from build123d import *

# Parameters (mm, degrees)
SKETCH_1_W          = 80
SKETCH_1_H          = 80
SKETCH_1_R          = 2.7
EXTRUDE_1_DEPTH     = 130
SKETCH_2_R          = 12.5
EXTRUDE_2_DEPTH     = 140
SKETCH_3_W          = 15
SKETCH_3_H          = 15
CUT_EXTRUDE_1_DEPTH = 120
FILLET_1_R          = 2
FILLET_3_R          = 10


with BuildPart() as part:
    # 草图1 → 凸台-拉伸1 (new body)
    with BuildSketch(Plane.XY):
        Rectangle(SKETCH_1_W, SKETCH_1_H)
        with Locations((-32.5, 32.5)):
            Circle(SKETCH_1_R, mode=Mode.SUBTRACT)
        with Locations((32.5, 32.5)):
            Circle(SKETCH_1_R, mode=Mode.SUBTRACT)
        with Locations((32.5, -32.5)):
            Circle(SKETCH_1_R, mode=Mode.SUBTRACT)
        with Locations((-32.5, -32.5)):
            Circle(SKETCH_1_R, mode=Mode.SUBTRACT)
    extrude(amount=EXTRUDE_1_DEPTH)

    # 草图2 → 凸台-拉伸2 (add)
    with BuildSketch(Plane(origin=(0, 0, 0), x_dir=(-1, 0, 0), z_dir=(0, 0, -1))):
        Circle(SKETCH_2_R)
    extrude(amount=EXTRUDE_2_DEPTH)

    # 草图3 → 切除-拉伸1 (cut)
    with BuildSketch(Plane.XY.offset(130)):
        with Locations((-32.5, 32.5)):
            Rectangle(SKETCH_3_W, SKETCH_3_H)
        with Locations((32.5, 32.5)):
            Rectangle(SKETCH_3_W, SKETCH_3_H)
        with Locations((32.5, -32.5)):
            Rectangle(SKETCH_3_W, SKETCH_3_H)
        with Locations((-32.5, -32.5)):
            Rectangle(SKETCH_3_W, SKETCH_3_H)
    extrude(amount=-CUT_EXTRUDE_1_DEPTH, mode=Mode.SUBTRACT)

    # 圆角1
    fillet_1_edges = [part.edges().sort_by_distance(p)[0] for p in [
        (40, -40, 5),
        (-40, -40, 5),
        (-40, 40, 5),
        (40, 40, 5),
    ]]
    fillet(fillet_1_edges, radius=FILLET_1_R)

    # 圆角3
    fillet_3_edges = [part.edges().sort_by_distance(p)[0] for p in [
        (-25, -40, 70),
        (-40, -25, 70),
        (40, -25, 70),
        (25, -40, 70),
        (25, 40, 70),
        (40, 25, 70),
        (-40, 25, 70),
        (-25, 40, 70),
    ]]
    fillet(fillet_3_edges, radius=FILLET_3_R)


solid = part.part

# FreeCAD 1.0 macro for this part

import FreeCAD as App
import Part
import Sketcher

V = App.Vector


def edges_at(feature, points):
    """Names of the edges that pass closest to the given points."""
    edges = feature.Shape.Edges
    near = lambda p: min(range(len(edges)), key=lambda i: edges[i].distToShape(Part.Vertex(*p))[0])
    return sorted({f"Edge{near(p) + 1}" for p in points})


def add_polygon(sketch, points):
    """Adds a closed chain of lines whose ends are joined by coincident constraints."""
    first, n = sketch.GeometryCount, len(points)
    for a, b in zip(points, points[1:] + points[:1]):
        sketch.addGeometry(Part.LineSegment(App.Vector(*a, 0), App.Vector(*b, 0)), False)
    for i in range(n):
        sketch.addConstraint(Sketcher.Constraint("Coincident", first + i, 2, first + (i + 1) % n, 1))

doc = App.newDocument("Part")
body = doc.addObject("PartDesign::Body", "Body")

sketch1 = doc.addObject("Sketcher::SketchObject", "Sketch")
body.addObject(sketch1)
sketch1.AttachmentSupport = (doc.XY_Plane, [""])
sketch1.MapMode = "FlatFace"
add_polygon(sketch1, [(-40, 40), (-40, -40), (40, -40), (40, 40)])
sketch1.addGeometry(Part.Circle(V(-32.5, -32.5, 0), V(0, 0, 1), 2.7), False)
sketch1.addGeometry(Part.Circle(V(32.5, -32.5, 0), V(0, 0, 1), 2.7), False)
sketch1.addGeometry(Part.Circle(V(-32.5, 32.5, 0), V(0, 0, 1), 2.7), False)
sketch1.addGeometry(Part.Circle(V(32.5, 32.5, 0), V(0, 0, 1), 2.7), False)
sketch1.addConstraint([
    Sketcher.Constraint("Vertical", 0),
    Sketcher.Constraint("Horizontal", 1),
    Sketcher.Constraint("Vertical", 2),
    Sketcher.Constraint("Horizontal", 3),
    Sketcher.Constraint("Equal", 4, 5),
    Sketcher.Constraint("Equal", 5, 6),
    Sketcher.Constraint("Equal", 6, 7),
    Sketcher.Constraint("Symmetric", 5, 3, 6, 3, -1, 1),
    Sketcher.Constraint("Symmetric", 4, 3, 7, 3, -1, 1),
    Sketcher.Constraint("Symmetric", 0, 2, 2, 2, -1, 1),
    Sketcher.Constraint("Symmetric", 4, 3, 5, 3, -2),
    Sketcher.Constraint("Equal", 3, 0),
    Sketcher.Constraint("Diameter", 4, 5.4),
    Sketcher.Constraint("DistanceX", 1, 1, 1, 2, 80.0),
    Sketcher.Constraint("DistanceX", 4, 3, 5, 3, 65.0),
    Sketcher.Constraint("DistanceY", 4, 3, 6, 3, 65.0),
])
pad1 = doc.addObject("PartDesign::Pad", "Pad")
body.addObject(pad1)
pad1.Profile = sketch1
pad1.Length = 130

sketch2 = doc.addObject("Sketcher::SketchObject", "Sketch001")
body.addObject(sketch2)
sketch2.AttachmentSupport = (doc.XY_Plane, [""])
sketch2.MapMode = "FlatFace"
sketch2.addGeometry(Part.Circle(V(0, 0, 0), V(0, 0, 1), 12.5), False)
sketch2.addConstraint([
    Sketcher.Constraint("Coincident", 0, 3, -1, 1),
    Sketcher.Constraint("Diameter", 0, 25.0),
])
pad2 = doc.addObject("PartDesign::Pad", "Pad001")
body.addObject(pad2)
pad2.Profile = sketch2
pad2.Length = 140
pad2.Reversed = True

sketch3 = doc.addObject("Sketcher::SketchObject", "Sketch002")
body.addObject(sketch3)
sketch3.AttachmentSupport = (doc.XY_Plane, [""])
sketch3.MapMode = "FlatFace"
sketch3.AttachmentOffset = App.Placement(V(0, 0, 130), App.Rotation())
add_polygon(sketch3, [(-40, 40), (-40, 25), (-25, 25), (-25, 40)])
add_polygon(sketch3, [(25, 40), (25, 25), (40, 25), (40, 40)])
add_polygon(sketch3, [(25, -25), (25, -40), (40, -40), (40, -25)])
add_polygon(sketch3, [(-40, -25), (-40, -40), (-25, -40), (-25, -25)])
sketch3.addConstraint([
    Sketcher.Constraint("Vertical", 0),
    Sketcher.Constraint("Horizontal", 1),
    Sketcher.Constraint("Vertical", 2),
    Sketcher.Constraint("Horizontal", 3),
    Sketcher.Constraint("Vertical", 4),
    Sketcher.Constraint("Horizontal", 5),
    Sketcher.Constraint("Vertical", 6),
    Sketcher.Constraint("Horizontal", 7),
    Sketcher.Constraint("Vertical", 8),
    Sketcher.Constraint("Horizontal", 9),
    Sketcher.Constraint("Vertical", 10),
    Sketcher.Constraint("Horizontal", 11),
    Sketcher.Constraint("Vertical", 12),
    Sketcher.Constraint("Horizontal", 13),
    Sketcher.Constraint("Vertical", 14),
    Sketcher.Constraint("Horizontal", 15),
    Sketcher.Constraint("Symmetric", 2, 2, 8, 2, -1, 1),
    Sketcher.Constraint("Symmetric", 0, 2, 10, 2, -1, 1),
    Sketcher.Constraint("Symmetric", 6, 2, 12, 2, -1, 1),
    Sketcher.Constraint("Symmetric", 4, 2, 14, 2, -1, 1),
    Sketcher.Constraint("Symmetric", 1, 2, 4, 2, -2),
    Sketcher.Constraint("Symmetric", 3, 2, 6, 2, -2),
    Sketcher.Constraint("Equal", 15, 0),
    Sketcher.Constraint("DistanceX", 1, 1, 1, 2, 15.0),
    Sketcher.Constraint("DistanceX", 0, 2, -1, 1, 40.0),
    Sketcher.Constraint("DistanceY", -1, 1, 0, 2, 25.0),
])
pocket1 = doc.addObject("PartDesign::Pocket", "Pocket")
body.addObject(pocket1)
pocket1.Profile = sketch3
pocket1.Length = 120
doc.recompute()

fillet = doc.addObject("PartDesign::Fillet", "Fillet")
body.addObject(fillet)
fillet.Base = (pocket1, edges_at(pocket1, [
    (40, -40, 5),
    (-40, -40, 5),
    (-40, 40, 5),
    (40, 40, 5),
]))
fillet.Radius = 2
doc.recompute()

fillet2 = doc.addObject("PartDesign::Fillet", "Fillet001")
body.addObject(fillet2)
fillet2.Base = (fillet, edges_at(fillet, [
    (-25, -40, 70),
    (-40, -25, 70),
    (40, -25, 70),
    (25, -40, 70),
    (25, 40, 70),
    (40, 25, 70),
    (-40, 25, 70),
    (-25, 40, 70),
]))
fillet2.Radius = 10

doc.recompute()
